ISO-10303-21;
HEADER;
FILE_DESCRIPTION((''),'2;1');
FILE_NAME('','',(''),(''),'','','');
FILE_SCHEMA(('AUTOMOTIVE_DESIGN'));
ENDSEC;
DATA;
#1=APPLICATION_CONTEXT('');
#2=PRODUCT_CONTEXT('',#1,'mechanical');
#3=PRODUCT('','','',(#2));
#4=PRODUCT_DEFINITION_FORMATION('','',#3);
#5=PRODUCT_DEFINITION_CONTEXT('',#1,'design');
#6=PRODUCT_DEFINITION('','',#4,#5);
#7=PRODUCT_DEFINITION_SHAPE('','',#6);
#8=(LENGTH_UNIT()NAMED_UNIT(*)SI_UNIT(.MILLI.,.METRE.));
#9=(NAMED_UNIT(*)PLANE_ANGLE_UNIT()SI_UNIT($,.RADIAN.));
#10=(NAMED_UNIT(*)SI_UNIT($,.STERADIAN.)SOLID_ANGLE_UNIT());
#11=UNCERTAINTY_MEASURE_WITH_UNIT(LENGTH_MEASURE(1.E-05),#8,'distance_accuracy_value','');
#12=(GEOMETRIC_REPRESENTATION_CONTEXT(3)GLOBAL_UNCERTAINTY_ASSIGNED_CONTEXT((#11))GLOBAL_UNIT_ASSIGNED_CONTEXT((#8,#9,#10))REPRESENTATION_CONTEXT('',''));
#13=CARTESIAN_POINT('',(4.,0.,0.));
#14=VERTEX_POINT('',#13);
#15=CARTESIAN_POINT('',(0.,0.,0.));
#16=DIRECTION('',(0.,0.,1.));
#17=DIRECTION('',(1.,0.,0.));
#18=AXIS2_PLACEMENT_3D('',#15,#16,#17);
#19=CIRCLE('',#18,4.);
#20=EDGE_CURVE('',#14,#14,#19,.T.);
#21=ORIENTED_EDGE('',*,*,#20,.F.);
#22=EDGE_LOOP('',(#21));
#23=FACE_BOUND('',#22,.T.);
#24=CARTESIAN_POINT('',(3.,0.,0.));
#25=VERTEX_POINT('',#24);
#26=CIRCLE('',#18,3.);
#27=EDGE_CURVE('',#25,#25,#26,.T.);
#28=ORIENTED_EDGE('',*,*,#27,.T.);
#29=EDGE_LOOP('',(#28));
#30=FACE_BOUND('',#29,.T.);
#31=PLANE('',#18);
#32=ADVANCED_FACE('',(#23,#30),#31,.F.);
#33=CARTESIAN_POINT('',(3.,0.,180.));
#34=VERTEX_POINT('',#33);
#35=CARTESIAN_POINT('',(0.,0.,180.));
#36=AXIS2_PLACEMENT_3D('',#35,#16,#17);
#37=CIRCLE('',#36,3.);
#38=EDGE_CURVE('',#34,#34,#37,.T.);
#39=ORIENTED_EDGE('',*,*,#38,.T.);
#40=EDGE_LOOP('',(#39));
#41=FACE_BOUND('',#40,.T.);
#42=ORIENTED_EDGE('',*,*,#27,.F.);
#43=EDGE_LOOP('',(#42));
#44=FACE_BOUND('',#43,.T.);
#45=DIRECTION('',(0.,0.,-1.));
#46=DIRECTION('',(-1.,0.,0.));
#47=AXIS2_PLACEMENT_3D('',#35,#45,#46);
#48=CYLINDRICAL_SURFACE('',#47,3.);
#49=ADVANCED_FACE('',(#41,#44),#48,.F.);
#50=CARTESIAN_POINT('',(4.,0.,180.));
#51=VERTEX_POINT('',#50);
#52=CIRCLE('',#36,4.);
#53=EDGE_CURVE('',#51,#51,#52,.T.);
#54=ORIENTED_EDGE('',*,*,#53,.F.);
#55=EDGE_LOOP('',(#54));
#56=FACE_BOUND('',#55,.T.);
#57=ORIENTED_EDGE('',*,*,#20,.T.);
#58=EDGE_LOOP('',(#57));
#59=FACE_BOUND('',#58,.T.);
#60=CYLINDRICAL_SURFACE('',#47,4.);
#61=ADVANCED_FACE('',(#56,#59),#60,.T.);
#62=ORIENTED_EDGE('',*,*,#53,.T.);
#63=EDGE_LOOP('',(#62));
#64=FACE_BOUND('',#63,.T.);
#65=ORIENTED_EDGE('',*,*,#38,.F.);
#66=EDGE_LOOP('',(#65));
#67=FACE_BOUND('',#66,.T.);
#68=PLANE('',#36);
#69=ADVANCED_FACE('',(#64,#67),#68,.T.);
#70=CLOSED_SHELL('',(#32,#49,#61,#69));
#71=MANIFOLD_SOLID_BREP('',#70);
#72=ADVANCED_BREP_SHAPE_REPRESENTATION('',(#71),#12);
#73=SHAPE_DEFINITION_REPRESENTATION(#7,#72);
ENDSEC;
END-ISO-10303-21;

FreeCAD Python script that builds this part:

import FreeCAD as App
import Part
import Sketcher
from FreeCAD import Vector
Q = App.Units.Quantity

doc = App.newDocument("Part")
params = doc.addObject("Spreadsheet::Sheet", "Params")
for row, (alias, value) in enumerate([
    ("sketch1_diameter", "8 mm"),
    ("sketch1_diameter2", "6 mm"),
    ("pad1_length", "180 mm"),
], start=1):
    params.set(f"A{row}", alias)
    params.set(f"B{row}", "=" + value)
    params.setAlias(f"B{row}", alias)

body = doc.addObject("PartDesign::Body", "Body")

# Sketch on XY plane
sketch1 = body.newObject("Sketcher::SketchObject", "Sketch")
sketch1.AttachmentSupport = (doc.getObject("XY_Plane"), [""])
sketch1.MapMode = "FlatFace"
sketch1.addGeometry([
    Part.Circle(Vector(0, 0, 0), Vector(0, 0, 1), 4),
    Part.Circle(Vector(0, 0, 0), Vector(0, 0, 1), 3),
], False)
sketch1.addConstraint([
    Sketcher.Constraint("Coincident", 0, 3, -1, 1),
    Sketcher.Constraint("Coincident", 1, 3, -1, 1),
    Sketcher.Constraint("Diameter", 0, Q("8 mm")),
    Sketcher.Constraint("Diameter", 1, Q("6 mm")),
])
sketch1.setExpression("Constraints[2]", "Params.sketch1_diameter")
sketch1.setExpression("Constraints[3]", "Params.sketch1_diameter2")
pad1 = body.newObject("PartDesign::Pad", "Pad")
pad1.Profile = sketch1
pad1.setExpression("Length", "Params.pad1_length")

doc.recompute()
